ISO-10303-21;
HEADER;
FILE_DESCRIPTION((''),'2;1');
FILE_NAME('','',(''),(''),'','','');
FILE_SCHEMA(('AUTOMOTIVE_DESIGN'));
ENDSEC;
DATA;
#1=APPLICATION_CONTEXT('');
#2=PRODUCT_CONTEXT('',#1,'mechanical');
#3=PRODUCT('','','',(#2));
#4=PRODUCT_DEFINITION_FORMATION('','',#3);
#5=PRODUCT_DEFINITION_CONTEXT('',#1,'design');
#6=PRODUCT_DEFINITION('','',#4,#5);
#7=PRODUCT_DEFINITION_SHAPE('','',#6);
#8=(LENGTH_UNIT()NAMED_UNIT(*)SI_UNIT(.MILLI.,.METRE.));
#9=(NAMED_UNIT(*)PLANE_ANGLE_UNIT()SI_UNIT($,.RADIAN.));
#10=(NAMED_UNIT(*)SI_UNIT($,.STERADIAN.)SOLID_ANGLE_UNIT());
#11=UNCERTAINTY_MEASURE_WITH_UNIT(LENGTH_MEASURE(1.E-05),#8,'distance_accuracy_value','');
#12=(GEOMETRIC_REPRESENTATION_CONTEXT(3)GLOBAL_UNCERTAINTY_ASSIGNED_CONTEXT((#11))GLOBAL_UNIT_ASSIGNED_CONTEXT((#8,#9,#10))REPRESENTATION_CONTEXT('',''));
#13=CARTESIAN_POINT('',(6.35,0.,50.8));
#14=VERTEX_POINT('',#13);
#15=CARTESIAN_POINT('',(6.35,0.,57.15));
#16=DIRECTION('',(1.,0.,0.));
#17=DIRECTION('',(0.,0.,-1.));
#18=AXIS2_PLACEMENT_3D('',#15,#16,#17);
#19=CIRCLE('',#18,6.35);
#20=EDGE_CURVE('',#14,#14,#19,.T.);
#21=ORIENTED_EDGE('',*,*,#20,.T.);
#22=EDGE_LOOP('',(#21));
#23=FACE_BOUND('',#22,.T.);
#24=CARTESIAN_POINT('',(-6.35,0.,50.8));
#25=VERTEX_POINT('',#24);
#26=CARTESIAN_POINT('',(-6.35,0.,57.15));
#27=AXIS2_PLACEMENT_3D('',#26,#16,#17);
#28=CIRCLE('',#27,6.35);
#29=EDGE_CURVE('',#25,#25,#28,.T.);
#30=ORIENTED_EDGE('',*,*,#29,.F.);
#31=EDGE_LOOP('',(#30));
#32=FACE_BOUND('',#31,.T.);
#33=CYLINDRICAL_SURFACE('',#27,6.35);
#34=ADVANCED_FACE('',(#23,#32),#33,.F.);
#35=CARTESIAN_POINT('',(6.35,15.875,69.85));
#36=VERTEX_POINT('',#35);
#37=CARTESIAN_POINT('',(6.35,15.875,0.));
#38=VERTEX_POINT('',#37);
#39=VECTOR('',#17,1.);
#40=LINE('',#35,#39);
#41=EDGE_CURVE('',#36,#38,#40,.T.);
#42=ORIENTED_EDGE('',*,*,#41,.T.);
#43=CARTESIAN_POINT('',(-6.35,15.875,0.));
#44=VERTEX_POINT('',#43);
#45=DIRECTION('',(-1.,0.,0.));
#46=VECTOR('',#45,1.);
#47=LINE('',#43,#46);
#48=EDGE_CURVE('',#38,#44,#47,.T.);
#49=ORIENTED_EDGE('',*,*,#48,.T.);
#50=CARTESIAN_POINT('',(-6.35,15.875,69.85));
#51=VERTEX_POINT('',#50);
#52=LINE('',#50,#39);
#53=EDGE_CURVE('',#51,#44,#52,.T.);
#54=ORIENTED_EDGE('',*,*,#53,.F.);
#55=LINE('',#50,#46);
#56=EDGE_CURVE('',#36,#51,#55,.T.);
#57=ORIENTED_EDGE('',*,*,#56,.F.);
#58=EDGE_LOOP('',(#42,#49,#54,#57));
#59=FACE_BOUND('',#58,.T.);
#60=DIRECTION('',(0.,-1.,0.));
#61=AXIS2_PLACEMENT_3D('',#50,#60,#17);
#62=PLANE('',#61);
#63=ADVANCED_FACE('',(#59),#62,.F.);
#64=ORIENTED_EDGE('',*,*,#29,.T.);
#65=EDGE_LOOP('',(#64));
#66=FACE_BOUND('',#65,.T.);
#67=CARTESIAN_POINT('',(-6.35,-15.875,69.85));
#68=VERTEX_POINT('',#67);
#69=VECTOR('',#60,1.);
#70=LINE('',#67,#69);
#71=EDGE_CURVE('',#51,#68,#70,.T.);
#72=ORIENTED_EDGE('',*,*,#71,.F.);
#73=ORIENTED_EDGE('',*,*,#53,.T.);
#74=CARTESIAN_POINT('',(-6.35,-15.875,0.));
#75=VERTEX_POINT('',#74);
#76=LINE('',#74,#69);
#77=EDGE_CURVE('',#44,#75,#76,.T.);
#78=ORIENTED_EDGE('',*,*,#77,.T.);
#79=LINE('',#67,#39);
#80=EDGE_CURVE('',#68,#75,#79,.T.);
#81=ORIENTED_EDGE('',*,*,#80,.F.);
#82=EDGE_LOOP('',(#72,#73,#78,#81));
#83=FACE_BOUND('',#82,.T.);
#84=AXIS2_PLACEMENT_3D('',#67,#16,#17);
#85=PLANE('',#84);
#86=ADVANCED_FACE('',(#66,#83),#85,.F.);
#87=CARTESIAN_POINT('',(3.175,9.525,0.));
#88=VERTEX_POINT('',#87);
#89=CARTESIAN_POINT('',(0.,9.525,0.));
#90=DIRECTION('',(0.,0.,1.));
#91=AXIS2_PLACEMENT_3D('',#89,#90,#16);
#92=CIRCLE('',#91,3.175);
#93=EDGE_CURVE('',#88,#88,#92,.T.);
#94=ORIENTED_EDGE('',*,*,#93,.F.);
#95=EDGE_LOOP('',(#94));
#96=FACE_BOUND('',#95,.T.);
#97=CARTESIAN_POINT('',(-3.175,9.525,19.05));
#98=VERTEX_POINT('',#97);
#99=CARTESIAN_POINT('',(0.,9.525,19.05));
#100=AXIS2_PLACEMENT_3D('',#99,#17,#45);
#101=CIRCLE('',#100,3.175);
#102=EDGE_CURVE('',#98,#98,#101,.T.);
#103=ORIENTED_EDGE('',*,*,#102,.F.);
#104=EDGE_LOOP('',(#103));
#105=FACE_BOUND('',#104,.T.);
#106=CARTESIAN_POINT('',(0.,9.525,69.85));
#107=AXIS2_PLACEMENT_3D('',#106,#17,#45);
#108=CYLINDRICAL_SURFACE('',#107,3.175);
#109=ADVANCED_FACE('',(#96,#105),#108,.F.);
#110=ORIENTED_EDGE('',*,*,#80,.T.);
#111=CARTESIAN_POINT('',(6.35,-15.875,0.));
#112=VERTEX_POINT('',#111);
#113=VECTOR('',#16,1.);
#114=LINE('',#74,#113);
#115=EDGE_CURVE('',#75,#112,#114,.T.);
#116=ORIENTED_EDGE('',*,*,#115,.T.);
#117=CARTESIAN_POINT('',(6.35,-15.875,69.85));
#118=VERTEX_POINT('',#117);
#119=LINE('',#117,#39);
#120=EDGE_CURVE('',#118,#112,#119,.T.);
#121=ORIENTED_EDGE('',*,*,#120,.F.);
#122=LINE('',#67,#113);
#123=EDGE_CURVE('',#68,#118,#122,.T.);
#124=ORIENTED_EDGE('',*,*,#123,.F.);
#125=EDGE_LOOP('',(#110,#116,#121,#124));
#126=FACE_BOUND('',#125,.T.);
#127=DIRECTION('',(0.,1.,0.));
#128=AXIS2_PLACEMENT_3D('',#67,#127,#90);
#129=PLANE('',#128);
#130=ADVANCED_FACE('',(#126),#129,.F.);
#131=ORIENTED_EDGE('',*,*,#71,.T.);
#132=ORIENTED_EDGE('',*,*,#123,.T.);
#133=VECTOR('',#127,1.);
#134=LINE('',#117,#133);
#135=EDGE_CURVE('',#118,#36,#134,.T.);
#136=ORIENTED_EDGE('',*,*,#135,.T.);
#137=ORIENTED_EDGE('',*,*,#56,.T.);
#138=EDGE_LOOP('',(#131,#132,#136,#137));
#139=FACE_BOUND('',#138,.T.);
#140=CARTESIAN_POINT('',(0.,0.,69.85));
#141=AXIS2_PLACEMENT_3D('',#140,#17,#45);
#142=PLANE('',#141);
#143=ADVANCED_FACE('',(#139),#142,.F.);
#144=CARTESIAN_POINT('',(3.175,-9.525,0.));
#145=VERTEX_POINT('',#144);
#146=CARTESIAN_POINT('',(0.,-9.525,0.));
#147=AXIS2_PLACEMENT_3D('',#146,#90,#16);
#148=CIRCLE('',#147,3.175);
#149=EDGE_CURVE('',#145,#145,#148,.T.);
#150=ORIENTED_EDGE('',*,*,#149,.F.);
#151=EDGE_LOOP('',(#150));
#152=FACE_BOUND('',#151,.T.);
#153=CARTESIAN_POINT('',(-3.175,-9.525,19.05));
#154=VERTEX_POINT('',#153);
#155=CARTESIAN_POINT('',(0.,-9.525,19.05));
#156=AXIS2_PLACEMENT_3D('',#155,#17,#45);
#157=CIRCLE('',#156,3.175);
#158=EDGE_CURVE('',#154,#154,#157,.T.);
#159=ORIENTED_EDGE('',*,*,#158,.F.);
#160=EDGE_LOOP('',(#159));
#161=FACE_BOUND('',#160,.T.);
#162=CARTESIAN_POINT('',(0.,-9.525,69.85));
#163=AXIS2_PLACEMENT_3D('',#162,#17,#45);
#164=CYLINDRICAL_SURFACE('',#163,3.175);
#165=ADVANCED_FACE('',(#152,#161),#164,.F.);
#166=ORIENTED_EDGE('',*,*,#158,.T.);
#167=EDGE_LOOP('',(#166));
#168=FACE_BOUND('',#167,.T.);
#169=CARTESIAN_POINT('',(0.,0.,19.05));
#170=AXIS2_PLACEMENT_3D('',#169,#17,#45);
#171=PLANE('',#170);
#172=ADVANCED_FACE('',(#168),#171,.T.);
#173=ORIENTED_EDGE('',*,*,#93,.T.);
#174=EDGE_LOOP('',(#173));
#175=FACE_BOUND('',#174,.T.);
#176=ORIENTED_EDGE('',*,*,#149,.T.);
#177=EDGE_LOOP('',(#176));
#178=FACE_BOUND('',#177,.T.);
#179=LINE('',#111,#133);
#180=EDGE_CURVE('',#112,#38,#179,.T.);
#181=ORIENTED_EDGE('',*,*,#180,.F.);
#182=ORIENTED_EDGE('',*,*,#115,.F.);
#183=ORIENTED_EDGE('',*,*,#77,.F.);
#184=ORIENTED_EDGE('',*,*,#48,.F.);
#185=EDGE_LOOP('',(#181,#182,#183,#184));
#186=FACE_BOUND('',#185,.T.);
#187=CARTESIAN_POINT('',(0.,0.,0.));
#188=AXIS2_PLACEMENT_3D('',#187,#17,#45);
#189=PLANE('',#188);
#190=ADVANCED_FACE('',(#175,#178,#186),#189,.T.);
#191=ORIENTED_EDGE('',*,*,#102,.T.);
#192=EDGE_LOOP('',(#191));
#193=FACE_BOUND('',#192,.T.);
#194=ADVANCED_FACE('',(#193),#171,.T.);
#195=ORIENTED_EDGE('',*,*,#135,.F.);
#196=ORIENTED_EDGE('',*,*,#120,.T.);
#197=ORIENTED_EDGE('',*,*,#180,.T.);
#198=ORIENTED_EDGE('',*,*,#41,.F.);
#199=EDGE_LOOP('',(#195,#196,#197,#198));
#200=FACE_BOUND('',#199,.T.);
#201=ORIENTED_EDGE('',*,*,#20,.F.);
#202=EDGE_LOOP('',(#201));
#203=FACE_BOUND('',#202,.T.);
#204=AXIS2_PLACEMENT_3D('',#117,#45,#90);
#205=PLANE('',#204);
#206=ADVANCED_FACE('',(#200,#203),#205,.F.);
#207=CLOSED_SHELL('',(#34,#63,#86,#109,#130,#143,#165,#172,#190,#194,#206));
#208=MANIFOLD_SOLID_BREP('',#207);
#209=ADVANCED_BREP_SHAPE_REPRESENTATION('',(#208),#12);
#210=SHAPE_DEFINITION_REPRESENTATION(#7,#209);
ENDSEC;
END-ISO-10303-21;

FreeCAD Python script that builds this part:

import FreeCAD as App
import Part
import Sketcher

V = App.Vector
Q = App.Units.Quantity


def add_polygon(sketch, points):
    """Adds a closed chain of lines whose ends are joined by coincident constraints."""
    first, n = sketch.GeometryCount, len(points)
    for a, b in zip(points, points[1:] + points[:1]):
        sketch.addGeometry(Part.LineSegment(App.Vector(*a, 0), App.Vector(*b, 0)), False)
    for i in range(n):
        sketch.addConstraint(Sketcher.Constraint("Coincident", first + i, 2, first + (i + 1) % n, 1))

doc = App.newDocument("Part")
body = doc.addObject("PartDesign::Body", "Body")

sketch1 = body.newObject("Sketcher::SketchObject", "Sketch")
sketch1.AttachmentSupport = (doc.getObject("XY_Plane"), [""])
sketch1.MapMode = "FlatFace"
add_polygon(sketch1, [(-6.35, 15.875), (-6.35, -15.875), (6.35, -15.875), (6.35, 15.875)])
sketch1.addGeometry(Part.Circle(V(0, -9.525, 0), V(0, 0, 1), 3.175), False)
sketch1.addGeometry(Part.Circle(V(0, 9.525, 0), V(0, 0, 1), 3.175), False)
sketch1.addConstraint([
    Sketcher.Constraint("Vertical", 0),
    Sketcher.Constraint("Horizontal", 1),
    Sketcher.Constraint("Vertical", 2),
    Sketcher.Constraint("Horizontal", 3),
    Sketcher.Constraint("Equal", 4, 5),
    Sketcher.Constraint("Symmetric", 4, 3, 5, 3, -1, 1),
    Sketcher.Constraint("Symmetric", 0, 2, 2, 2, -1, 1),
    Sketcher.Constraint("PointOnObject", 4, 3, -2),
    Sketcher.Constraint("Diameter", 4, Q("0.25 in")),
    Sketcher.Constraint("DistanceX", 1, 1, 1, 2, Q("0.5 in")),
    Sketcher.Constraint("DistanceY", 0, 2, 5, 3, Q("1 in")),
    Sketcher.Constraint("DistanceY", 0, 2, 0, 1, Q("1.25 in")),
])
pad1 = body.newObject("PartDesign::Pad", "Pad")
pad1.Profile = sketch1
pad1.Length = Q("2.75 in")

sketch2 = body.newObject("Sketcher::SketchObject", "Sketch001")
sketch2.AttachmentSupport = (doc.getObject("XY_Plane"), [""])
sketch2.MapMode = "FlatFace"
sketch2.AttachmentOffset = App.Placement(V(0, 0, 2.75 * 25.4), App.Rotation())
sketch2.addGeometry([
    Part.Circle(V(0, -9.525, 0), V(0, 0, 1), 3.175),
    Part.Circle(V(0, 9.525, 0), V(0, 0, 1), 3.175),
], False)
sketch2.addConstraint([
    Sketcher.Constraint("Equal", 0, 1),
    Sketcher.Constraint("Symmetric", 0, 3, 1, 3, -1, 1),
    Sketcher.Constraint("PointOnObject", 0, 3, -2),
    Sketcher.Constraint("Diameter", 0, Q("0.25 in")),
    Sketcher.Constraint("DistanceY", 0, 3, 1, 3, Q("0.75 in")),
])
pad2 = body.newObject("PartDesign::Pad", "Pad001")
pad2.Profile = sketch2
pad2.Length = Q("2 in")
pad2.Reversed = True

sketch3 = body.newObject("Sketcher::SketchObject", "Sketch002")
sketch3.AttachmentSupport = (doc.getObject("YZ_Plane"), [""])
sketch3.MapMode = "FlatFace"
sketch3.AttachmentOffset = App.Placement(V(0, 0, 0.25 * 25.4), App.Rotation())
sketch3.addGeometry(Part.Circle(V(0, 57.15, 0), V(0, 0, 1), 6.35), False)
sketch3.addConstraint([
    Sketcher.Constraint("PointOnObject", 0, 3, -2),
    Sketcher.Constraint("Diameter", 0, Q("0.5 in")),
    Sketcher.Constraint("DistanceY", -1, 1, 0, 3, Q("2.25 in")),
])
pocket1 = body.newObject("PartDesign::Pocket", "Pocket")
pocket1.Profile = sketch3
pocket1.Type = "ThroughAll"

doc.recompute()
